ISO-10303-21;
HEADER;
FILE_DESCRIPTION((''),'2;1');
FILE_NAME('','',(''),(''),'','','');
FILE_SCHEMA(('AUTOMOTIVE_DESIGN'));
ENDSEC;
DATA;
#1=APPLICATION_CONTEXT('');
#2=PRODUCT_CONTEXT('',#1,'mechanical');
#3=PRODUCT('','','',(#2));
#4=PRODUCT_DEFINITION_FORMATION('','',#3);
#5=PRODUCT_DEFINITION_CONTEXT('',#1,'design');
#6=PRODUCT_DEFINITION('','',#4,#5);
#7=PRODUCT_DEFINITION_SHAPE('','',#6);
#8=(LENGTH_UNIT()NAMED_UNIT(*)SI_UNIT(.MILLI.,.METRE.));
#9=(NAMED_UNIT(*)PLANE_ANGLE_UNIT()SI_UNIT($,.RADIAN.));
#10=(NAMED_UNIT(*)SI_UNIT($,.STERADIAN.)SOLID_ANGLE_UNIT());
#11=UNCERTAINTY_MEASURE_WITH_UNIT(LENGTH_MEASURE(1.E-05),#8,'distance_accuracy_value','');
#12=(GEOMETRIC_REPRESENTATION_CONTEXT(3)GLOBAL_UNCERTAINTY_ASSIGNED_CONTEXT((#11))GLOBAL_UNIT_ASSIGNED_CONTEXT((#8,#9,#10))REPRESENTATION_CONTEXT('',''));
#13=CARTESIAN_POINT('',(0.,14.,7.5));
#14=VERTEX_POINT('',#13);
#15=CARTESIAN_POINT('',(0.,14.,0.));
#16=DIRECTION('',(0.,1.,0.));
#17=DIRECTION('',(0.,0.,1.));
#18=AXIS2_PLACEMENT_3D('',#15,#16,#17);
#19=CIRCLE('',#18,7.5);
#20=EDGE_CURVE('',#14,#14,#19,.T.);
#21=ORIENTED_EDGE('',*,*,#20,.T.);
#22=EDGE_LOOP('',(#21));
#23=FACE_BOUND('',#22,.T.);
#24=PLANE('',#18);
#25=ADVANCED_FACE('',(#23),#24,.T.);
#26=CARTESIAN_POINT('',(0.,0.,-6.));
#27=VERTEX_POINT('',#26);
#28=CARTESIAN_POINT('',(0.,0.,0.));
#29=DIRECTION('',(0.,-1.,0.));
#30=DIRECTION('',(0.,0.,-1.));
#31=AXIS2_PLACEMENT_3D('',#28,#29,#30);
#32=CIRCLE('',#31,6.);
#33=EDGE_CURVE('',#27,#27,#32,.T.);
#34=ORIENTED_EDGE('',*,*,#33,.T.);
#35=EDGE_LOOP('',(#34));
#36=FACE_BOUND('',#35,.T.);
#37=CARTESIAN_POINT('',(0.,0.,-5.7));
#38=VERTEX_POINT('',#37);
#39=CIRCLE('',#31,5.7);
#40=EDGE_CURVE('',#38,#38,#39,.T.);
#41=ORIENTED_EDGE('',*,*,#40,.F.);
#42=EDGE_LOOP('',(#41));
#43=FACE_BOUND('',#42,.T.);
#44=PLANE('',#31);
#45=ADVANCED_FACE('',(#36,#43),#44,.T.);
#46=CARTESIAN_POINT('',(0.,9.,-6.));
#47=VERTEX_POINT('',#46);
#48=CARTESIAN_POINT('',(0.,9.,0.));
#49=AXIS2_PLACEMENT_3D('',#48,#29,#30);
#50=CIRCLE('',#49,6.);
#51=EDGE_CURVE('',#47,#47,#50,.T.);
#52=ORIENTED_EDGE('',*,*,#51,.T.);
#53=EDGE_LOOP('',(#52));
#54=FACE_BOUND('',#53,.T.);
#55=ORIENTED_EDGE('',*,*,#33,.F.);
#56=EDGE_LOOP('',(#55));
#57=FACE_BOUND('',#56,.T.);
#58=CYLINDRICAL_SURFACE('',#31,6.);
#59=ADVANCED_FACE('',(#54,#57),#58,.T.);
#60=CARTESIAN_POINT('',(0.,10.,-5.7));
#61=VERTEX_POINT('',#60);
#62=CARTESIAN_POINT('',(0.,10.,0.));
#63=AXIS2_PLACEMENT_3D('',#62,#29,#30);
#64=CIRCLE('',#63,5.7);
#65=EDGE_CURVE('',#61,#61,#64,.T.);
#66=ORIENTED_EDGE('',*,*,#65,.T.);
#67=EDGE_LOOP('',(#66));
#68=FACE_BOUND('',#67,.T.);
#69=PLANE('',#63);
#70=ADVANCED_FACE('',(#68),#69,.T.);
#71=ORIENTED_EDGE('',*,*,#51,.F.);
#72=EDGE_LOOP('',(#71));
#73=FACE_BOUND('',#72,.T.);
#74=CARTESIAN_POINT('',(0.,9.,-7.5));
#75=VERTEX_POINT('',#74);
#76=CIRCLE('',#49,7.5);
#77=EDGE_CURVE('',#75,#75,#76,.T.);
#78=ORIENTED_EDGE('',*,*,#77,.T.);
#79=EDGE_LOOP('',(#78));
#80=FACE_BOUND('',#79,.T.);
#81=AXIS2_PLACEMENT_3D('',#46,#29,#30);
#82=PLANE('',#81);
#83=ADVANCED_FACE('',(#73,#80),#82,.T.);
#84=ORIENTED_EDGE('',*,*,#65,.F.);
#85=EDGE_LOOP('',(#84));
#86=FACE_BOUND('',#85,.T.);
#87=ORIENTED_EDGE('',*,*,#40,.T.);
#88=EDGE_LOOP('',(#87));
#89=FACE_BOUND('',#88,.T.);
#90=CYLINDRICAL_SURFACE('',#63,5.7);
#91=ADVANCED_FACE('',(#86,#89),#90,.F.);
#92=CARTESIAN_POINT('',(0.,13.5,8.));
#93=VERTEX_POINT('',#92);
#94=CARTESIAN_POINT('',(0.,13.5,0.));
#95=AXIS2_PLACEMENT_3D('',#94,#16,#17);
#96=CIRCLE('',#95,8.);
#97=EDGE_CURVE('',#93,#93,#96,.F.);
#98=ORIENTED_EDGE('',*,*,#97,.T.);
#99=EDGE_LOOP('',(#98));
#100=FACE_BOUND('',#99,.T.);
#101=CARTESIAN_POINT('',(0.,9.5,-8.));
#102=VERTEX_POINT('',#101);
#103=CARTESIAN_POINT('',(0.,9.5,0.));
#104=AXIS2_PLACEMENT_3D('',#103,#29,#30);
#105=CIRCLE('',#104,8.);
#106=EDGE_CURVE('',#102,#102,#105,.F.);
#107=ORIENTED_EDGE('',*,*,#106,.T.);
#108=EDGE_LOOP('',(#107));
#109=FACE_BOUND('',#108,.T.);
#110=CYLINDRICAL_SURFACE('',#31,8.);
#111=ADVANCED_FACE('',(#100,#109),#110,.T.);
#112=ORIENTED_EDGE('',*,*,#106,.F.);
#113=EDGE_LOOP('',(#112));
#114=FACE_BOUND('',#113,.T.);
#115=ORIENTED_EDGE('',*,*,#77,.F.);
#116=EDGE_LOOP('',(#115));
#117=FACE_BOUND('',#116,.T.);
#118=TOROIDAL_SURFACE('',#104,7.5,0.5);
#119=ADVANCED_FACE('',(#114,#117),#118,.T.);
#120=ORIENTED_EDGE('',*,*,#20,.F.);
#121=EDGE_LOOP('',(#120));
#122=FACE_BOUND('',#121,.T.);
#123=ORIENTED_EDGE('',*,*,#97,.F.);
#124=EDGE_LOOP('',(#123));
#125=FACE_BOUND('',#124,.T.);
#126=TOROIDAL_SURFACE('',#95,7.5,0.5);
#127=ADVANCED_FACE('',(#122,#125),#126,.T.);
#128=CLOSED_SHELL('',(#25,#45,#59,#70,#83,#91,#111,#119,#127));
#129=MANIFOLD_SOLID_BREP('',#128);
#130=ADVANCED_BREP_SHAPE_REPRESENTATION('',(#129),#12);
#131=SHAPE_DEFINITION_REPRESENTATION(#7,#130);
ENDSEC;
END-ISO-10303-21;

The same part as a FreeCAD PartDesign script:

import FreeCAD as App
import Part
import Sketcher

V = App.Vector


def edges_at(feature, points):
    """Names of the edges that pass closest to the given points."""
    edges = feature.Shape.Edges
    near = lambda p: min(range(len(edges)), key=lambda i: edges[i].distToShape(Part.Vertex(*p))[0])
    return sorted({f"Edge{near(p) + 1}" for p in points})

doc = App.newDocument("Part")
params = doc.addObject("Spreadsheet::Sheet", "Params")
for row, (alias, value) in enumerate([
    ("sketch1_width", "5 mm"),
    ("sketch1_width2", "14 mm"),
    ("sketch1_height", "2 mm"),
    ("sketch1_height2", "8 mm"),
    ("revolution_angle", "360 deg"),
    ("fillet_radius", "0.5 mm"),
    ("sketch2_diameter", "11.4 mm"),
    ("pocket1_length", "10 mm"),
], start=1):
    params.set(f"A{row}", alias)
    params.set(f"B{row}", "=" + value)
    params.setAlias(f"B{row}", alias)

body = doc.addObject("PartDesign::Body", "Body")

# Sketch on YZ plane
sketch1 = body.newObject("Sketcher::SketchObject", "Sketch")
sketch1.AttachmentSupport = (doc.getObject("YZ_Plane"), [""])
sketch1.MapMode = "FlatFace"
sketch1.addGeometry(Part.LineSegment(V(9, -6, 0), V(9, -8, 0)), False)
sketch1.addGeometry(Part.LineSegment(V(9, -8, 0), V(14, -8, 0)), False)
sketch1.addGeometry(Part.LineSegment(V(14, -8, 0), V(14, 0, 0)), False)
sketch1.addGeometry(Part.LineSegment(V(14, 0, 0), V(0, 0, 0)), False)
sketch1.addGeometry(Part.LineSegment(V(0, 0, 0), V(0, -6, 0)), False)
sketch1.addGeometry(Part.LineSegment(V(0, -6, 0), V(9, -6, 0)), False)
sketch1.addConstraint(Sketcher.Constraint("Coincident", 0, 2, 1, 1))
sketch1.addConstraint(Sketcher.Constraint("Coincident", 1, 2, 2, 1))
sketch1.addConstraint(Sketcher.Constraint("Coincident", 2, 2, 3, 1))
sketch1.addConstraint(Sketcher.Constraint("Coincident", 3, 2, 4, 1))
sketch1.addConstraint(Sketcher.Constraint("Coincident", 4, 2, 5, 1))
sketch1.addConstraint(Sketcher.Constraint("Coincident", 5, 2, 0, 1))
sketch1.addConstraint(Sketcher.Constraint("Vertical", 0))
sketch1.addConstraint(Sketcher.Constraint("Horizontal", 1))
sketch1.addConstraint(Sketcher.Constraint("Vertical", 2))
sketch1.addConstraint(Sketcher.Constraint("Horizontal", 3))
sketch1.addConstraint(Sketcher.Constraint("Vertical", 4))
sketch1.addConstraint(Sketcher.Constraint("Horizontal", 5))
sketch1.addConstraint(Sketcher.Constraint("Coincident", 3, 2, -1, 1))
sketch1.addConstraint(Sketcher.Constraint("DistanceX", 1, 1, 1, 2, 5.0))
sketch1.addConstraint(Sketcher.Constraint("DistanceX", 3, 2, 3, 1, 14.0))
sketch1.addConstraint(Sketcher.Constraint("DistanceY", 0, 2, 0, 1, 2.0))
sketch1.addConstraint(Sketcher.Constraint("DistanceY", 2, 1, 2, 2, 8.0))
sketch1.setExpression("Constraints[13]", "Params.sketch1_width")
sketch1.setExpression("Constraints[14]", "Params.sketch1_width2")
sketch1.setExpression("Constraints[15]", "Params.sketch1_height")
sketch1.setExpression("Constraints[16]", "Params.sketch1_height2")
revolution = body.newObject("PartDesign::Revolution", "Revolution")
revolution.Profile = sketch1
revolution.ReferenceAxis = (sketch1, ["H_Axis"])
revolution.setExpression("Angle", "Params.revolution_angle")
doc.recompute()

fillet = body.newObject("PartDesign::Fillet", "Fillet")
fillet.Base = (revolution, edges_at(revolution, [(0, 9, 8), (0, 14, 8)]))
fillet.setExpression("Radius", "Params.fillet_radius")

# Sketch on XZ plane
sketch2 = body.newObject("Sketcher::SketchObject", "Sketch001")
sketch2.AttachmentSupport = (doc.getObject("XZ_Plane"), [""])
sketch2.MapMode = "FlatFace"
sketch2.addGeometry(Part.Circle(V(0, 0, 0), V(0, 0, 1), 6), False)
sketch2.addConstraint(Sketcher.Constraint("Coincident", 0, 3, -1, 1))
sketch2.addConstraint(Sketcher.Constraint("Diameter", 0, 11.4))
sketch2.setExpression("Constraints[1]", "Params.sketch2_diameter")
pocket1 = body.newObject("PartDesign::Pocket", "Pocket")
pocket1.Profile = sketch2
pocket1.setExpression("Length", "Params.pocket1_length")

doc.recompute()
